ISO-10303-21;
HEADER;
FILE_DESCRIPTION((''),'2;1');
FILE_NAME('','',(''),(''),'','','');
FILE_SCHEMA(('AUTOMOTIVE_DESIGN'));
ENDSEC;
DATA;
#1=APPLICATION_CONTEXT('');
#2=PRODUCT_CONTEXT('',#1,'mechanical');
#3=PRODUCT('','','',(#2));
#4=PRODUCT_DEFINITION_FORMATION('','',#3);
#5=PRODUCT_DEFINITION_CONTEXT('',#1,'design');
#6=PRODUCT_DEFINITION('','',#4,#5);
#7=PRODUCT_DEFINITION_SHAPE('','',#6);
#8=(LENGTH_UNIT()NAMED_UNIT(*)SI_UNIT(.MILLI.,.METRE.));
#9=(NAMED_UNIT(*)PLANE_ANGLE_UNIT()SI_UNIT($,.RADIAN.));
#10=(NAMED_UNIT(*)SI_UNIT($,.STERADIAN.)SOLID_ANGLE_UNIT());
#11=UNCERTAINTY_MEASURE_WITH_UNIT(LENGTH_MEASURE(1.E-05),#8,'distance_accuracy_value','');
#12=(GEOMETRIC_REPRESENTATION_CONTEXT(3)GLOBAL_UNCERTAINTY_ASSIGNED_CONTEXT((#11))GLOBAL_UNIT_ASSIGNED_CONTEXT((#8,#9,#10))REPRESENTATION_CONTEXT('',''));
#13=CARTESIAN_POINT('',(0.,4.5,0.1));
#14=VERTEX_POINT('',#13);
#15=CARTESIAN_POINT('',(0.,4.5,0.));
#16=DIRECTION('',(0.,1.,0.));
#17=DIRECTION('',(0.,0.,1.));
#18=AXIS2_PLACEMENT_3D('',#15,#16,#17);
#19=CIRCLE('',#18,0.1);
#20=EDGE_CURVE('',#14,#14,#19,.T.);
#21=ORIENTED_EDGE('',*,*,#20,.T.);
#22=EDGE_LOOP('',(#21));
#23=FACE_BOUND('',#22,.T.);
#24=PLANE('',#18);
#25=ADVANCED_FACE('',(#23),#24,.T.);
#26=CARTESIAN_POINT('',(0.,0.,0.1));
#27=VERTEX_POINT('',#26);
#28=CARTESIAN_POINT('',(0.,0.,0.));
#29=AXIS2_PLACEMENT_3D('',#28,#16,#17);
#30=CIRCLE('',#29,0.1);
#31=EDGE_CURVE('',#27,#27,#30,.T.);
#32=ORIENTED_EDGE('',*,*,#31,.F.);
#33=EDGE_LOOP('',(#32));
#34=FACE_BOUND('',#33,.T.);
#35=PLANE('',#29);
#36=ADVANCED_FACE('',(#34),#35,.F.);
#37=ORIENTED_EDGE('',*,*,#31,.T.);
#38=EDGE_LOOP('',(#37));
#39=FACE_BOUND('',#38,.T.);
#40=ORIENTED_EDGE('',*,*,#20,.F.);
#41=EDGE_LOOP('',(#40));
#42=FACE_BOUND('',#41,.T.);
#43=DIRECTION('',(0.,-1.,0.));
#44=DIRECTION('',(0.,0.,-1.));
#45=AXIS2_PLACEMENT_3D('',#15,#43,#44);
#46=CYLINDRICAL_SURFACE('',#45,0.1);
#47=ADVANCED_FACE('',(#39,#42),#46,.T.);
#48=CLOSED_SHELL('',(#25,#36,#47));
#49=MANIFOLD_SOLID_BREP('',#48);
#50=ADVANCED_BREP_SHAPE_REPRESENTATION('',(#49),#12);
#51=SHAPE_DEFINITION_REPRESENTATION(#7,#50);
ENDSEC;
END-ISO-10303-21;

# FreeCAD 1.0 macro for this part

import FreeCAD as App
import Part
import Sketcher
from FreeCAD import Vector
Q = App.Units.Quantity

doc = App.newDocument("Part")
params = doc.addObject("Spreadsheet::Sheet", "Params")
for row, (alias, value) in enumerate([
    ("sketch1_diameter", "0.2 mm"),
    ("pad1_length", "4.5 mm"),
], start=1):
    params.set(f"A{row}", alias)
    params.set(f"B{row}", "=" + value)
    params.setAlias(f"B{row}", alias)

body = doc.addObject("PartDesign::Body", "Body")

# Sketch on XZ plane
sketch1 = body.newObject("Sketcher::SketchObject", "Sketch")
sketch1.AttachmentSupport = (doc.getObject("XZ_Plane"), [""])
sketch1.MapMode = "FlatFace"
sketch1.addGeometry(Part.Circle(Vector(0, 0, 0), Vector(0, 0, 1), 0.1), False)
sketch1.addConstraint([
    Sketcher.Constraint("Coincident", 0, 3, -1, 1),
    Sketcher.Constraint("Diameter", 0, Q("0.2 mm")),
])
sketch1.setExpression("Constraints[1]", "Params.sketch1_diameter")
pad1 = body.newObject("PartDesign::Pad", "Pad")
pad1.Profile = sketch1
pad1.setExpression("Length", "Params.pad1_length")
pad1.Reversed = True

doc.recompute()
